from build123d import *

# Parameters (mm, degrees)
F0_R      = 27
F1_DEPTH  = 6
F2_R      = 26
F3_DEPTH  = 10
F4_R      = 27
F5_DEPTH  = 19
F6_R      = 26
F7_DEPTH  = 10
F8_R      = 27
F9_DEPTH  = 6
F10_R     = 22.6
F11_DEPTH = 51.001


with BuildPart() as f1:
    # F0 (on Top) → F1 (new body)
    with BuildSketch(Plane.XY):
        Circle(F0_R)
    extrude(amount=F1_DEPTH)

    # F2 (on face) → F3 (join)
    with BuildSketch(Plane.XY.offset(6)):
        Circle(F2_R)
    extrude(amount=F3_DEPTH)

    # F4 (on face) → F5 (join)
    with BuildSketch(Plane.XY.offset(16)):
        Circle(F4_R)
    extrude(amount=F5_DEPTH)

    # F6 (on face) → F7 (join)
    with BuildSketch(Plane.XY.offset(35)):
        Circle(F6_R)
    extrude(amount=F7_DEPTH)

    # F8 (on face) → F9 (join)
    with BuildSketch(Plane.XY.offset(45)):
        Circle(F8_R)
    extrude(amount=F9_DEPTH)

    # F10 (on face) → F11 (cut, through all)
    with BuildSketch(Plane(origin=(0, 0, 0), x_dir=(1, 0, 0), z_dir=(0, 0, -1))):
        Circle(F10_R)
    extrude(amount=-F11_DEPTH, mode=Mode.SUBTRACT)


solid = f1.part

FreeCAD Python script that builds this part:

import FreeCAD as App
import Part
import Sketcher
Q = App.Units.Quantity

doc = App.newDocument("Part")
params = doc.addObject("Spreadsheet::Sheet", "Params")
for row, (alias, value) in enumerate([
    ("sketch1_diameter", "54 mm"),
    ("pad1_length", "6 mm"),
    ("sketch2_diameter", "52 mm"),
    ("pad2_length", "10 mm"),
    ("sketch3_diameter", "54 mm"),
    ("pad3_length", "19 mm"),
    ("sketch4_diameter", "52 mm"),
    ("pad4_length", "10 mm"),
    ("sketch5_diameter", "54 mm"),
    ("pad5_length", "6 mm"),
    ("sketch6_diameter", "45.2 mm"),
], start=1):
    params.set(f"A{row}", alias)
    params.set(f"B{row}", "=" + value)
    params.setAlias(f"B{row}", alias)

body = doc.addObject("PartDesign::Body", "Body")

# Sketch on XY plane
sketch1 = body.newObject("Sketcher::SketchObject", "Sketch")
sketch1.AttachmentSupport = (doc.getObject("XY_Plane"), [""])
sketch1.MapMode = "FlatFace"
sketch1.addGeometry(Part.Circle(App.Vector(0, 0, 0), App.Vector(0, 0, 1), 27), False)
sketch1.addConstraint([
    Sketcher.Constraint("Coincident", 0, 3, -1, 1),
    Sketcher.Constraint("Diameter", 0, Q("54 mm")),
])
sketch1.setExpression("Constraints[1]", "Params.sketch1_diameter")
pad1 = body.newObject("PartDesign::Pad", "Pad")
pad1.Profile = sketch1
pad1.setExpression("Length", "Params.pad1_length")

# Sketch on XY plane
sketch2 = body.newObject("Sketcher::SketchObject", "Sketch001")
sketch2.AttachmentSupport = (doc.getObject("XY_Plane"), [""])
sketch2.MapMode = "FlatFace"
sketch2.AttachmentOffset = App.Placement(App.Vector(0, 0, 6), App.Rotation())
sketch2.addGeometry(Part.Circle(App.Vector(0, 0, 0), App.Vector(0, 0, 1), 26), False)
sketch2.addConstraint([
    Sketcher.Constraint("Coincident", 0, 3, -1, 1),
    Sketcher.Constraint("Diameter", 0, Q("52 mm")),
])
sketch2.setExpression("Constraints[1]", "Params.sketch2_diameter")
pad2 = body.newObject("PartDesign::Pad", "Pad001")
pad2.Profile = sketch2
pad2.setExpression("Length", "Params.pad2_length")

# Sketch on XY plane
sketch3 = body.newObject("Sketcher::SketchObject", "Sketch002")
sketch3.AttachmentSupport = (doc.getObject("XY_Plane"), [""])
sketch3.MapMode = "FlatFace"
sketch3.AttachmentOffset = App.Placement(App.Vector(0, 0, 16), App.Rotation())
sketch3.addGeometry(Part.Circle(App.Vector(0, 0, 0), App.Vector(0, 0, 1), 27), False)
sketch3.addConstraint([
    Sketcher.Constraint("Coincident", 0, 3, -1, 1),
    Sketcher.Constraint("Diameter", 0, Q("54 mm")),
])
sketch3.setExpression("Constraints[1]", "Params.sketch3_diameter")
pad3 = body.newObject("PartDesign::Pad", "Pad002")
pad3.Profile = sketch3
pad3.setExpression("Length", "Params.pad3_length")

# Sketch on XY plane
sketch4 = body.newObject("Sketcher::SketchObject", "Sketch003")
sketch4.AttachmentSupport = (doc.getObject("XY_Plane"), [""])
sketch4.MapMode = "FlatFace"
sketch4.AttachmentOffset = App.Placement(App.Vector(0, 0, 35), App.Rotation())
sketch4.addGeometry(Part.Circle(App.Vector(0, 0, 0), App.Vector(0, 0, 1), 26), False)
sketch4.addConstraint([
    Sketcher.Constraint("Coincident", 0, 3, -1, 1),
    Sketcher.Constraint("Diameter", 0, Q("52 mm")),
])
sketch4.setExpression("Constraints[1]", "Params.sketch4_diameter")
pad4 = body.newObject("PartDesign::Pad", "Pad003")
pad4.Profile = sketch4
pad4.setExpression("Length", "Params.pad4_length")

# Sketch on XY plane
sketch5 = body.newObject("Sketcher::SketchObject", "Sketch004")
sketch5.AttachmentSupport = (doc.getObject("XY_Plane"), [""])
sketch5.MapMode = "FlatFace"
sketch5.AttachmentOffset = App.Placement(App.Vector(0, 0, 45), App.Rotation())
sketch5.addGeometry(Part.Circle(App.Vector(0, 0, 0), App.Vector(0, 0, 1), 27), False)
sketch5.addConstraint([
    Sketcher.Constraint("Coincident", 0, 3, -1, 1),
    Sketcher.Constraint("Diameter", 0, Q("54 mm")),
])
sketch5.setExpression("Constraints[1]", "Params.sketch5_diameter")
pad5 = body.newObject("PartDesign::Pad", "Pad004")
pad5.Profile = sketch5
pad5.setExpression("Length", "Params.pad5_length")

# Sketch on XY plane
sketch6 = body.newObject("Sketcher::SketchObject", "Sketch005")
sketch6.AttachmentSupport = (doc.getObject("XY_Plane"), [""])
sketch6.MapMode = "FlatFace"
sketch6.addGeometry(Part.Circle(App.Vector(0, 0, 0), App.Vector(0, 0, 1), 22.6), False)
sketch6.addConstraint([
    Sketcher.Constraint("Coincident", 0, 3, -1, 1),
    Sketcher.Constraint("Diameter", 0, Q("45.2 mm")),
])
sketch6.setExpression("Constraints[1]", "Params.sketch6_diameter")
pocket1 = body.newObject("PartDesign::Pocket", "Pocket")
pocket1.Profile = sketch6
pocket1.Type = "ThroughAll"
pocket1.Reversed = True

doc.recompute()
